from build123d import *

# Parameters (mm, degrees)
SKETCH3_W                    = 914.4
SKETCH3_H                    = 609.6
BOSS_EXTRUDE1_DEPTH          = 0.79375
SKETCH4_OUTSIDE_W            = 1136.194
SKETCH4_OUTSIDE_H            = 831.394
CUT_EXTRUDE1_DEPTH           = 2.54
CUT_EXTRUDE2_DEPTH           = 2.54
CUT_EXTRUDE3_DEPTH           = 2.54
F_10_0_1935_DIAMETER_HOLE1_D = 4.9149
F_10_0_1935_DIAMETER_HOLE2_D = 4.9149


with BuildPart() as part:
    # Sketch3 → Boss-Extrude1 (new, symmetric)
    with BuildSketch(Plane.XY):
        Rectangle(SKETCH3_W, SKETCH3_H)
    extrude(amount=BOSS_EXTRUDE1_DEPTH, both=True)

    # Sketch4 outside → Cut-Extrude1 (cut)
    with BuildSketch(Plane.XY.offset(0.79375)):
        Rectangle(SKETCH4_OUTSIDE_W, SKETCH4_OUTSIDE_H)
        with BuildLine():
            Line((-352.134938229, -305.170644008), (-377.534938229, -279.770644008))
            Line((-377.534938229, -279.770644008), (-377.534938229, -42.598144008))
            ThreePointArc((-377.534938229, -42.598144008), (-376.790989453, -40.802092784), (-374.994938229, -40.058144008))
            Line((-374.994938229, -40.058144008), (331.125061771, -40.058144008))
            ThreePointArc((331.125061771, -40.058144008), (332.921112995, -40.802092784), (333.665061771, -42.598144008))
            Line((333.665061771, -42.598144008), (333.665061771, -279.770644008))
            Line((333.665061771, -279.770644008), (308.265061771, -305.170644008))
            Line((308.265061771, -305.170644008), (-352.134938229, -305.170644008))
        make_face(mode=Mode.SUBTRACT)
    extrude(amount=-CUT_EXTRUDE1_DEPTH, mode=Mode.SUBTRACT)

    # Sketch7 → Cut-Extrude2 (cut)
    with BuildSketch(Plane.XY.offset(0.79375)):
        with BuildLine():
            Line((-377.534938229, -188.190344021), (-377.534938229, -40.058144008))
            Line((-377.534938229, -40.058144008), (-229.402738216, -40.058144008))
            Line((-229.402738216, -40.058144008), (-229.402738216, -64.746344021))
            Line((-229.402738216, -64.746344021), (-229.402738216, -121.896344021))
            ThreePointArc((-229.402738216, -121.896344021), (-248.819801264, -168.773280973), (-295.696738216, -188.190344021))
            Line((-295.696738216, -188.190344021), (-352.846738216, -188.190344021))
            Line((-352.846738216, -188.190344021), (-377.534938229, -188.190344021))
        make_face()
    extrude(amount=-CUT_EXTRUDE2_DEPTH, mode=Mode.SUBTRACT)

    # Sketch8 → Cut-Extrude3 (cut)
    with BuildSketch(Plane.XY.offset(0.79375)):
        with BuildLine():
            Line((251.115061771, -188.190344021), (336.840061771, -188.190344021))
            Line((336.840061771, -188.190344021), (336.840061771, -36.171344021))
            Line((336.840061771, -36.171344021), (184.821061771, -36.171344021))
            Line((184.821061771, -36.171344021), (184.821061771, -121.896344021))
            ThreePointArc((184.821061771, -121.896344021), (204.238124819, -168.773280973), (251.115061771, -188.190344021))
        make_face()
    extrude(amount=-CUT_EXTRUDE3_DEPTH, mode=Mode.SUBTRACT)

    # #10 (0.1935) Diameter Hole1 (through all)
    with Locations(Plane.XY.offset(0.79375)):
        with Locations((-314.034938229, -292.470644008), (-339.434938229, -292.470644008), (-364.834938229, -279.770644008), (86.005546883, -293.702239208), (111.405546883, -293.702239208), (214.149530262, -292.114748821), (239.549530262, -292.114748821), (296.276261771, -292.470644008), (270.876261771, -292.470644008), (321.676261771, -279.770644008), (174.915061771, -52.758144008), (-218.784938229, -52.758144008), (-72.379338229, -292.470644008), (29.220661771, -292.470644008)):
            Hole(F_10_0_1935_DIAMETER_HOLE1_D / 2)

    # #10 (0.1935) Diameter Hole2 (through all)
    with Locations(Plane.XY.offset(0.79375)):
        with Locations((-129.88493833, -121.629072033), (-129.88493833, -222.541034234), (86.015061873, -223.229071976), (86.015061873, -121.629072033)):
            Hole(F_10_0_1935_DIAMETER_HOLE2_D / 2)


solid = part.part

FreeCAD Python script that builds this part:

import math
import FreeCAD as App
import Part
import Sketcher
from FreeCAD import Vector
Q = App.Units.Quantity


def add_polygon(sketch, points):
    """Adds a closed chain of lines whose ends are joined by coincident constraints."""
    first, n = sketch.GeometryCount, len(points)
    for a, b in zip(points, points[1:] + points[:1]):
        sketch.addGeometry(Part.LineSegment(App.Vector(*a, 0), App.Vector(*b, 0)), False)
    for i in range(n):
        sketch.addConstraint(Sketcher.Constraint("Coincident", first + i, 2, first + (i + 1) % n, 1))

doc = App.newDocument("Part")
params = doc.addObject("Spreadsheet::Sheet", "Params")
for row, (alias, value) in enumerate([
    ("sketch1_width", "36 in"),
    ("sketch1_height", "24 in"),
    ("pad1_length", "0.0625 in"),
    ("sketch2_radius", "0.1 in"),
    ("sketch2_width", "26 in"),
    ("sketch2_width2", "27.8 in"),
    ("pocket1_length", "0.1 in"),
    ("sketch3_radius", "2.61 in"),
    ("pocket2_length", "0.1 in"),
    ("sketch4_radius", "2.61 in"),
    ("sketch4_width", "3.375 in"),
    ("pocket3_length", "0.1 in"),
    ("hole_diameter", "0.1935 in"),
    ("hole2_diameter", "0.1935 in"),
], start=1):
    params.set(f"A{row}", alias)
    params.set(f"B{row}", "=" + value)
    params.setAlias(f"B{row}", alias)

body = doc.addObject("PartDesign::Body", "Body")

sketch1 = body.newObject("Sketcher::SketchObject", "Sketch")
sketch1.AttachmentSupport = (doc.getObject("XY_Plane"), [""])
sketch1.MapMode = "FlatFace"
add_polygon(sketch1, [(-457, 305), (-457, -305), (457, -305), (457, 305)])
sketch1.addConstraint(Sketcher.Constraint("Vertical", 0))
sketch1.addConstraint(Sketcher.Constraint("Horizontal", 1))
sketch1.addConstraint(Sketcher.Constraint("Vertical", 2))
sketch1.addConstraint(Sketcher.Constraint("Horizontal", 3))
sketch1.addConstraint(Sketcher.Constraint("Symmetric", 0, 2, 2, 2, -1, 1))
sketch1.addConstraint(Sketcher.Constraint("DistanceX", 1, 1, 1, 2, Q("36 in")))
sketch1.addConstraint(Sketcher.Constraint("DistanceY", 0, 2, 0, 1, Q("24 in")))
sketch1.setExpression("Constraints[9]", "Params.sketch1_width")
sketch1.setExpression("Constraints[10]", "Params.sketch1_height")
pad1 = body.newObject("PartDesign::Pad", "Pad")
pad1.Profile = sketch1
pad1.setExpression("Length", "Params.pad1_length")
pad1.Midplane = True

sketch2 = body.newObject("Sketcher::SketchObject", "Sketch001")
sketch2.AttachmentSupport = (doc.getObject("XY_Plane"), [""])
sketch2.MapMode = "FlatFace"
sketch2.AttachmentOffset = App.Placement(Vector(0, 0, 0.03125 * 25.4), App.Rotation())
add_polygon(sketch2, [(-568.1, 415.7), (-568.1, -415.7), (568.1, -415.7), (568.1, 415.7)])
sketch2.addGeometry(Part.LineSegment(Vector(308.3, -305.2, 0), Vector(-352.1, -305.2, 0)), False)
sketch2.addGeometry(Part.LineSegment(Vector(-352.1, -305.2, 0), Vector(-377.5, -279.8, 0)), False)
sketch2.addGeometry(Part.LineSegment(Vector(-377.5, -279.8, 0), Vector(-377.5, -42.6, 0)), False)
sketch2.addGeometry(Part.ArcOfCircle(Part.Circle(Vector(-375, -42.6, 0), Vector(0, 0, 1), 2.5), math.radians(90), math.radians(180)), False)
sketch2.addGeometry(Part.LineSegment(Vector(-375, -40.1, 0), Vector(331.1, -40.1, 0)), False)
sketch2.addGeometry(Part.ArcOfCircle(Part.Circle(Vector(331.1, -42.6, 0), Vector(0, 0, 1), 2.5), math.radians(0), math.radians(90)), False)
sketch2.addGeometry(Part.LineSegment(Vector(333.7, -42.6, 0), Vector(333.7, -279.8, 0)), False)
sketch2.addGeometry(Part.LineSegment(Vector(333.7, -279.8, 0), Vector(308.3, -305.2, 0)), False)
sketch2.addConstraint(Sketcher.Constraint("Coincident", 4, 2, 5, 1))
sketch2.addConstraint(Sketcher.Constraint("Coincident", 5, 2, 6, 1))
sketch2.addConstraint(Sketcher.Constraint("Tangent", 6, 2, 7, 2))
sketch2.addConstraint(Sketcher.Constraint("Tangent", 7, 1, 8, 1))
sketch2.addConstraint(Sketcher.Constraint("Tangent", 8, 2, 9, 2))
sketch2.addConstraint(Sketcher.Constraint("Tangent", 9, 1, 10, 1))
sketch2.addConstraint(Sketcher.Constraint("Coincident", 10, 2, 11, 1))
sketch2.addConstraint(Sketcher.Constraint("Coincident", 11, 2, 4, 1))
sketch2.addConstraint(Sketcher.Constraint("Vertical", 0))
sketch2.addConstraint(Sketcher.Constraint("Horizontal", 1))
sketch2.addConstraint(Sketcher.Constraint("Vertical", 2))
sketch2.addConstraint(Sketcher.Constraint("Horizontal", 3))
sketch2.addConstraint(Sketcher.Constraint("Horizontal", 4))
sketch2.addConstraint(Sketcher.Constraint("Vertical", 6))
sketch2.addConstraint(Sketcher.Constraint("Horizontal", 8))
sketch2.addConstraint(Sketcher.Constraint("Vertical", 10))
sketch2.addConstraint(Sketcher.Constraint("Equal", 7, 9))
sketch2.addConstraint(Sketcher.Constraint("Symmetric", 0, 2, 2, 2, -1, 1))
sketch2.addConstraint(Sketcher.Constraint("Perpendicular", 5, 11))
sketch2.addConstraint(Sketcher.Constraint("Horizontal", 5, 2, 10, 2))
sketch2.addConstraint(Sketcher.Constraint("Equal", 5, 11))
sketch2.addConstraint(Sketcher.Constraint("Radius", 7, Q("0.1 in")))
sketch2.addConstraint(Sketcher.Constraint("DistanceX", 4, 2, 4, 1, Q("26 in")))
sketch2.addConstraint(Sketcher.Constraint("DistanceX", 8, 1, 8, 2, Q("27.8 in")))
sketch2.addConstraint(Sketcher.Constraint("DistanceY", 6, 1, 6, 2, Q("9.3375 in")))
sketch2.addConstraint(Sketcher.Constraint("DistanceX", 1, 1, 1, 2, 1136.194))
sketch2.addConstraint(Sketcher.Constraint("DistanceY", 0, 2, 0, 1, 831.394))
sketch2.addConstraint(Sketcher.Constraint("DistanceX", 7, 3, -1, 1, 374.994938))
sketch2.addConstraint(Sketcher.Constraint("DistanceY", 7, 3, -1, 1, 42.598144))
sketch2.setExpression("Constraints[25]", "Params.sketch2_radius")
sketch2.setExpression("Constraints[26]", "Params.sketch2_width")
sketch2.setExpression("Constraints[27]", "Params.sketch2_width2")
pocket1 = body.newObject("PartDesign::Pocket", "Pocket")
pocket1.Profile = sketch2
pocket1.setExpression("Length", "Params.pocket1_length")

sketch3 = body.newObject("Sketcher::SketchObject", "Sketch002")
sketch3.AttachmentSupport = (doc.getObject("XY_Plane"), [""])
sketch3.MapMode = "FlatFace"
sketch3.AttachmentOffset = App.Placement(Vector(0, 0, 0.03125 * 25.4), App.Rotation())
sketch3.addGeometry(Part.LineSegment(Vector(-378, -40, 0), Vector(-378, -188, 0)), False)
sketch3.addGeometry(Part.LineSegment(Vector(-378, -188, 0), Vector(-296, -188, 0)), False)
sketch3.addGeometry(Part.ArcOfCircle(Part.Circle(Vector(-296, -122, 0), Vector(0, 0, 1), 66), math.radians(-90), math.radians(0)), False)
sketch3.addGeometry(Part.LineSegment(Vector(-229, -122, 0), Vector(-229, -40, 0)), False)
sketch3.addGeometry(Part.LineSegment(Vector(-229, -40, 0), Vector(-378, -40, 0)), False)
sketch3.addConstraint(Sketcher.Constraint("Coincident", 0, 2, 1, 1))
sketch3.addConstraint(Sketcher.Constraint("Tangent", 1, 2, 2, 1))
sketch3.addConstraint(Sketcher.Constraint("Tangent", 2, 2, 3, 1))
sketch3.addConstraint(Sketcher.Constraint("Coincident", 3, 2, 4, 1))
sketch3.addConstraint(Sketcher.Constraint("Coincident", 4, 2, 0, 1))
sketch3.addConstraint(Sketcher.Constraint("Vertical", 0))
sketch3.addConstraint(Sketcher.Constraint("Horizontal", 1))
sketch3.addConstraint(Sketcher.Constraint("Vertical", 3))
sketch3.addConstraint(Sketcher.Constraint("Horizontal", 4))
sketch3.addConstraint(Sketcher.Constraint("Equal", 4, 0))
sketch3.addConstraint(Sketcher.Constraint("Radius", 2, Q("2.61 in")))
sketch3.addConstraint(Sketcher.Constraint("DistanceX", 1, 1, 1, 2, 81.8382))
sketch3.addConstraint(Sketcher.Constraint("DistanceX", 2, 3, -1, 1, 295.696738))
sketch3.addConstraint(Sketcher.Constraint("DistanceY", 2, 3, -1, 1, 121.896344))
sketch3.setExpression("Constraints[10]", "Params.sketch3_radius")
pocket2 = body.newObject("PartDesign::Pocket", "Pocket001")
pocket2.Profile = sketch3
pocket2.setExpression("Length", "Params.pocket2_length")

sketch4 = body.newObject("Sketcher::SketchObject", "Sketch003")
sketch4.AttachmentSupport = (doc.getObject("XY_Plane"), [""])
sketch4.MapMode = "FlatFace"
sketch4.AttachmentOffset = App.Placement(Vector(0, 0, 0.03125 * 25.4), App.Rotation())
sketch4.addGeometry(Part.LineSegment(Vector(251, -188, 0), Vector(337, -188, 0)), False)
sketch4.addGeometry(Part.LineSegment(Vector(337, -188, 0), Vector(337, -36, 0)), False)
sketch4.addGeometry(Part.LineSegment(Vector(337, -36, 0), Vector(185, -36, 0)), False)
sketch4.addGeometry(Part.LineSegment(Vector(185, -36, 0), Vector(185, -122, 0)), False)
sketch4.addGeometry(Part.ArcOfCircle(Part.Circle(Vector(251, -122, 0), Vector(0, 0, 1), 66), math.radians(180), math.radians(270)), False)
sketch4.addConstraint(Sketcher.Constraint("Coincident", 0, 2, 1, 1))
sketch4.addConstraint(Sketcher.Constraint("Coincident", 1, 2, 2, 1))
sketch4.addConstraint(Sketcher.Constraint("Coincident", 2, 2, 3, 1))
sketch4.addConstraint(Sketcher.Constraint("Tangent", 3, 2, 4, 1))
sketch4.addConstraint(Sketcher.Constraint("Tangent", 4, 2, 0, 1))
sketch4.addConstraint(Sketcher.Constraint("Horizontal", 0))
sketch4.addConstraint(Sketcher.Constraint("Vertical", 1))
sketch4.addConstraint(Sketcher.Constraint("Horizontal", 2))
sketch4.addConstraint(Sketcher.Constraint("Vertical", 3))
sketch4.addConstraint(Sketcher.Constraint("Equal", 2, 1))
sketch4.addConstraint(Sketcher.Constraint("Radius", 4, Q("2.61 in")))
sketch4.addConstraint(Sketcher.Constraint("DistanceX", 0, 1, 0, 2, Q("3.375 in")))
sketch4.addConstraint(Sketcher.Constraint("DistanceX", -1, 1, 4, 3, 251.115062))
sketch4.addConstraint(Sketcher.Constraint("DistanceY", 4, 3, -1, 1, 121.896344))
sketch4.setExpression("Constraints[10]", "Params.sketch4_radius")
sketch4.setExpression("Constraints[11]", "Params.sketch4_width")
pocket3 = body.newObject("PartDesign::Pocket", "Pocket002")
pocket3.Profile = sketch4
pocket3.setExpression("Length", "Params.pocket3_length")

sketch5 = body.newObject("Sketcher::SketchObject", "Sketch004")
sketch5.AttachmentSupport = (doc.getObject("XY_Plane"), [""])
sketch5.MapMode = "FlatFace"
sketch5.AttachmentOffset = App.Placement(Vector(0, 0, 0.03125 * 25.4), App.Rotation())
sketch5.addGeometry(Part.Circle(Vector(-314, -292.5, 0), Vector(0, 0, 1), 2.5), False)
sketch5.addGeometry(Part.Circle(Vector(-339.4, -292.5, 0), Vector(0, 0, 1), 2.5), False)
sketch5.addGeometry(Part.Circle(Vector(-364.8, -279.8, 0), Vector(0, 0, 1), 2.5), False)
sketch5.addGeometry(Part.Circle(Vector(86, -293.7, 0), Vector(0, 0, 1), 2.5), False)
sketch5.addGeometry(Part.Circle(Vector(111.4, -293.7, 0), Vector(0, 0, 1), 2.5), False)
sketch5.addGeometry(Part.Circle(Vector(214.1, -292.1, 0), Vector(0, 0, 1), 2.5), False)
sketch5.addGeometry(Part.Circle(Vector(239.5, -292.1, 0), Vector(0, 0, 1), 2.5), False)
sketch5.addGeometry(Part.Circle(Vector(296.3, -292.5, 0), Vector(0, 0, 1), 2.5), False)
sketch5.addGeometry(Part.Circle(Vector(270.9, -292.5, 0), Vector(0, 0, 1), 2.5), False)
sketch5.addGeometry(Part.Circle(Vector(321.7, -279.8, 0), Vector(0, 0, 1), 2.5), False)
sketch5.addGeometry(Part.Circle(Vector(174.9, -52.8, 0), Vector(0, 0, 1), 2.5), False)
sketch5.addGeometry(Part.Circle(Vector(-218.8, -52.8, 0), Vector(0, 0, 1), 2.5), False)
sketch5.addGeometry(Part.Circle(Vector(-72.4, -292.5, 0), Vector(0, 0, 1), 2.5), False)
sketch5.addGeometry(Part.Circle(Vector(29.2, -292.5, 0), Vector(0, 0, 1), 2.5), False)
sketch5.addConstraint(Sketcher.Constraint("Equal", 0, 1))
sketch5.addConstraint(Sketcher.Constraint("Equal", 1, 2))
sketch5.addConstraint(Sketcher.Constraint("Equal", 2, 3))
sketch5.addConstraint(Sketcher.Constraint("Equal", 3, 4))
sketch5.addConstraint(Sketcher.Constraint("Equal", 4, 5))
sketch5.addConstraint(Sketcher.Constraint("Equal", 5, 6))
sketch5.addConstraint(Sketcher.Constraint("Equal", 6, 7))
sketch5.addConstraint(Sketcher.Constraint("Equal", 7, 8))
sketch5.addConstraint(Sketcher.Constraint("Equal", 8, 9))
sketch5.addConstraint(Sketcher.Constraint("Equal", 9, 10))
sketch5.addConstraint(Sketcher.Constraint("Equal", 10, 11))
sketch5.addConstraint(Sketcher.Constraint("Equal", 11, 12))
sketch5.addConstraint(Sketcher.Constraint("Equal", 12, 13))
sketch5.addConstraint(Sketcher.Constraint("Horizontal", 0, 3, 1, 3))
sketch5.addConstraint(Sketcher.Constraint("Horizontal", 3, 3, 4, 3))
sketch5.addConstraint(Sketcher.Constraint("Horizontal", 5, 3, 6, 3))
sketch5.addConstraint(Sketcher.Constraint("Horizontal", 1, 3, 7, 3))
sketch5.addConstraint(Sketcher.Constraint("Horizontal", 7, 3, 8, 3))
sketch5.addConstraint(Sketcher.Constraint("Horizontal", 2, 3, 9, 3))
sketch5.addConstraint(Sketcher.Constraint("Horizontal", 10, 3, 11, 3))
sketch5.addConstraint(Sketcher.Constraint("Horizontal", 8, 3, 12, 3))
sketch5.addConstraint(Sketcher.Constraint("Horizontal", 12, 3, 13, 3))
sketch5.addConstraint(Sketcher.Constraint("DistanceX", 1, 3, 0, 3, Q("1 in")))
sketch5.addConstraint(Sketcher.Constraint("DistanceX", 2, 3, 1, 3, Q("1 in")))
sketch5.addConstraint(Sketcher.Constraint("DistanceX", 3, 3, 4, 3, Q("1 in")))
sketch5.addConstraint(Sketcher.Constraint("DistanceX", 5, 3, 6, 3, Q("1 in")))
sketch5.addConstraint(Sketcher.Constraint("DistanceX", 8, 3, 7, 3, Q("1 in")))
sketch5.addConstraint(Sketcher.Constraint("DistanceX", 7, 3, 9, 3, Q("1 in")))
sketch5.addConstraint(Sketcher.Constraint("DistanceX", 12, 3, 13, 3, Q("4 in")))
sketch5.addConstraint(Sketcher.Constraint("Diameter", 0, Q("0.1935 in")))
sketch5.addConstraint(Sketcher.Constraint("DistanceY", 1, 3, 2, 3, Q("0.5 in")))
sketch5.addConstraint(Sketcher.Constraint("DistanceX", 11, 3, 10, 3, Q("15.5 in")))
sketch5.addConstraint(Sketcher.Constraint("DistanceX", 0, 3, 11, 3, Q("3.75 in")))
sketch5.addConstraint(Sketcher.Constraint("DistanceX", 0, 3, 7, 3, Q("24.028 in")))
sketch5.addConstraint(Sketcher.Constraint("DistanceY", 8, 3, 10, 3, Q("9.4375 in")))
sketch5.addConstraint(Sketcher.Constraint("DistanceX", 0, 3, 12, 3, Q("9.514 in")))
sketch5.addConstraint(Sketcher.Constraint("DistanceX", 0, 3, -1, 1, 314.034938))
sketch5.addConstraint(Sketcher.Constraint("DistanceY", 3, 3, -1, 1, 293.702239))
sketch5.addConstraint(Sketcher.Constraint("DistanceX", -1, 1, 5, 3, 214.14953))
sketch5.addConstraint(Sketcher.Constraint("DistanceY", 5, 3, -1, 1, 292.114749))
sketch5.addConstraint(Sketcher.Constraint("DistanceY", 0, 3, -1, 1, 292.470644))
sketch5.addConstraint(Sketcher.Constraint("DistanceX", -1, 1, 3, 3, 86.005547))
doc.recompute()
hole = body.newObject("PartDesign::Hole", "Hole")
hole.Profile = sketch5
hole.ThreadType = "None"
hole.setExpression("Diameter", "Params.hole_diameter")
hole.DepthType = "ThroughAll"

sketch6 = body.newObject("Sketcher::SketchObject", "Sketch005")
sketch6.AttachmentSupport = (doc.getObject("XY_Plane"), [""])
sketch6.MapMode = "FlatFace"
sketch6.AttachmentOffset = App.Placement(Vector(0, 0, 0.03125 * 25.4), App.Rotation())
sketch6.addGeometry(Part.Circle(Vector(-129.9, -121.6, 0), Vector(0, 0, 1), 2.5), False)
sketch6.addGeometry(Part.Circle(Vector(-129.9, -222.5, 0), Vector(0, 0, 1), 2.5), False)
sketch6.addGeometry(Part.Circle(Vector(86, -223.2, 0), Vector(0, 0, 1), 2.5), False)
sketch6.addGeometry(Part.Circle(Vector(86, -121.6, 0), Vector(0, 0, 1), 2.5), False)
sketch6.addConstraint(Sketcher.Constraint("Equal", 0, 1))
sketch6.addConstraint(Sketcher.Constraint("Equal", 1, 2))
sketch6.addConstraint(Sketcher.Constraint("Equal", 2, 3))
sketch6.addConstraint(Sketcher.Constraint("Horizontal", 0, 3, 3, 3))
sketch6.addConstraint(Sketcher.Constraint("Vertical", 0, 3, 1, 3))
sketch6.addConstraint(Sketcher.Constraint("Vertical", 2, 3, 3, 3))
sketch6.addConstraint(Sketcher.Constraint("DistanceY", 2, 3, 0, 3, Q("4 in")))
sketch6.addConstraint(Sketcher.Constraint("Diameter", 0, Q("0.1935 in")))
sketch6.addConstraint(Sketcher.Constraint("DistanceX", 1, 3, 2, 3, Q("8.5 in")))
sketch6.addConstraint(Sketcher.Constraint("DistanceX", 0, 3, -1, 1, 129.884938))
sketch6.addConstraint(Sketcher.Constraint("DistanceY", 2, 3, -1, 1, 223.229072))
sketch6.addConstraint(Sketcher.Constraint("DistanceY", 1, 3, -1, 1, 222.541034))
doc.recompute()
hole2 = body.newObject("PartDesign::Hole", "Hole001")
hole2.Profile = sketch6
hole2.ThreadType = "None"
hole2.setExpression("Diameter", "Params.hole2_diameter")
hole2.DepthType = "ThroughAll"

doc.recompute()
